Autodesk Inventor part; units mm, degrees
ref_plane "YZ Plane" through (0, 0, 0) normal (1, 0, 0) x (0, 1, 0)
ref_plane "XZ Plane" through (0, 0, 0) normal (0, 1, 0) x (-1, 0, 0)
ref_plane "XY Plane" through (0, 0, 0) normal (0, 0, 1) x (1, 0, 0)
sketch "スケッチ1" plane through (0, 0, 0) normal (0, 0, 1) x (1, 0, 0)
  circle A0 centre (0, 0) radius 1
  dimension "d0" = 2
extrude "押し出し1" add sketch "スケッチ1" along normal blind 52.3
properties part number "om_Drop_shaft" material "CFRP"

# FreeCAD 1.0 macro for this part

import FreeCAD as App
import Part
import Sketcher
from FreeCAD import Vector

doc = App.newDocument("Part")
body = doc.addObject("PartDesign::Body", "Body")

# Sketch on XY plane
sketch1 = doc.addObject("Sketcher::SketchObject", "Sketch")
body.addObject(sketch1)
sketch1.AttachmentSupport = (doc.XY_Plane, [""])
sketch1.MapMode = "FlatFace"
sketch1.addGeometry(Part.Circle(Vector(0, 0, 0), Vector(0, 0, 1), 1), False)
sketch1.addConstraint(Sketcher.Constraint("Coincident", 0, 3, -1, 1))
sketch1.addConstraint(Sketcher.Constraint("Diameter", 0, 2.0))
pad1 = doc.addObject("PartDesign::Pad", "Pad")
body.addObject(pad1)
pad1.Profile = sketch1
pad1.Length = 52.3

doc.recompute()
